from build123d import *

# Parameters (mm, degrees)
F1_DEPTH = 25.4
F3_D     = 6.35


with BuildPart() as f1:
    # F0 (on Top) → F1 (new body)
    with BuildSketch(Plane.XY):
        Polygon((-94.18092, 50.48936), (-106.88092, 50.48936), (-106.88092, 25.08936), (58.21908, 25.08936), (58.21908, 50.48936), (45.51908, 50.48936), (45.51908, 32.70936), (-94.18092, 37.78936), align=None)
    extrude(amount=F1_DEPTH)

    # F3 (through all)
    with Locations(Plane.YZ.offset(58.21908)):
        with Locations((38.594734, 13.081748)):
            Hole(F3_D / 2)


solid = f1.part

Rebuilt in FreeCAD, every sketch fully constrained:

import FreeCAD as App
import Part
import Sketcher
from FreeCAD import Vector
Q = App.Units.Quantity


def add_polygon(sketch, points):
    """Adds a closed chain of lines whose ends are joined by coincident constraints."""
    first, n = sketch.GeometryCount, len(points)
    for a, b in zip(points, points[1:] + points[:1]):
        sketch.addGeometry(Part.LineSegment(App.Vector(*a, 0), App.Vector(*b, 0)), False)
    for i in range(n):
        sketch.addConstraint(Sketcher.Constraint("Coincident", first + i, 2, first + (i + 1) % n, 1))

doc = App.newDocument("Part")
body = doc.addObject("PartDesign::Body", "Body")

sketch1 = body.newObject("Sketcher::SketchObject", "Sketch")
sketch1.AttachmentSupport = (doc.getObject("XY_Plane"), [""])
sketch1.MapMode = "FlatFace"
add_polygon(sketch1, [(-94, 50), (-107, 50), (-107, 25), (58, 25), (58, 50), (46, 50), (46, 33), (-94, 38)])
sketch1.addConstraint([
    Sketcher.Constraint("Horizontal", 0),
    Sketcher.Constraint("Vertical", 1),
    Sketcher.Constraint("Horizontal", 2),
    Sketcher.Constraint("Vertical", 3),
    Sketcher.Constraint("Horizontal", 4),
    Sketcher.Constraint("Vertical", 5),
    Sketcher.Constraint("Vertical", 7),
    Sketcher.Constraint("Horizontal", 0, 2, 3, 2),
    Sketcher.Constraint("Equal", 0, 4),
    Sketcher.Constraint("Equal", 4, 7),
    Sketcher.Constraint("DistanceY", 1, 2, 1, 1, Q("1 in")),
    Sketcher.Constraint("DistanceX", 0, 2, 0, 1, Q("0.5 in")),
    Sketcher.Constraint("DistanceX", 2, 1, 2, 2, Q("6.5 in")),
    Sketcher.Constraint("DistanceY", 5, 2, 5, 1, Q("0.7 in")),
    Sketcher.Constraint("DistanceX", 0, 2, -1, 1, Q("106.88092 mm")),
    Sketcher.Constraint("DistanceY", -1, 1, 0, 2, Q("50.48936 mm")),
])
pad1 = body.newObject("PartDesign::Pad", "Pad")
pad1.Profile = sketch1
pad1.Length = Q("1 in")

sketch2 = body.newObject("Sketcher::SketchObject", "Sketch001")
sketch2.AttachmentSupport = (doc.getObject("YZ_Plane"), [""])
sketch2.MapMode = "FlatFace"
sketch2.AttachmentOffset = App.Placement(Vector(0, 0, 58.21908), App.Rotation())
sketch2.addGeometry(Part.Circle(Vector(38.6, 13.1, 0), Vector(0, 0, 1), 3.2), False)
sketch2.addConstraint([
    Sketcher.Constraint("Diameter", 0, Q("0.25 in")),
    Sketcher.Constraint("DistanceX", -1, 1, 0, 3, Q("38.594734 mm")),
    Sketcher.Constraint("DistanceY", -1, 1, 0, 3, Q("13.081748 mm")),
])
doc.recompute()
hole = body.newObject("PartDesign::Hole", "Hole")
hole.Profile = sketch2
hole.ThreadType = "None"
hole.Diameter = Q("0.25 in")
hole.DepthType = "ThroughAll"

doc.recompute()
